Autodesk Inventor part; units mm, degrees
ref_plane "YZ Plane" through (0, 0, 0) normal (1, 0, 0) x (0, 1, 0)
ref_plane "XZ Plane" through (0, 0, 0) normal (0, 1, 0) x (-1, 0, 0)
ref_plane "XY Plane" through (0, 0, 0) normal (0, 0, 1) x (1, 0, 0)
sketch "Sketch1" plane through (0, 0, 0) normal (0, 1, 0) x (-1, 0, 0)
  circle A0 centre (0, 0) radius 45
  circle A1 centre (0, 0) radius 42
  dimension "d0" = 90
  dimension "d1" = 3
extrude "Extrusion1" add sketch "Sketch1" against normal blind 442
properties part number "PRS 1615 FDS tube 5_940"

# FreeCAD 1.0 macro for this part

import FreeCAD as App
import Part
import Sketcher

V = App.Vector

doc = App.newDocument("Part")
body = doc.addObject("PartDesign::Body", "Body")

# Sketch on XZ plane
sketch1 = body.newObject("Sketcher::SketchObject", "Sketch")
sketch1.AttachmentSupport = (doc.getObject("XZ_Plane"), [""])
sketch1.MapMode = "FlatFace"
sketch1.addGeometry([
    Part.Circle(V(0, 0, 0), V(0, 0, 1), 45),
    Part.Circle(V(0, 0, 0), V(0, 0, 1), 42),
], False)
sketch1.addConstraint([
    Sketcher.Constraint("Coincident", 0, 3, -1, 1),
    Sketcher.Constraint("Coincident", 1, 3, -1, 1),
    Sketcher.Constraint("Diameter", 0, 90.0),
    Sketcher.Constraint("Diameter", 1, 84.0),
])
pad1 = body.newObject("PartDesign::Pad", "Pad")
pad1.Profile = sketch1
pad1.Length = 442

doc.recompute()
